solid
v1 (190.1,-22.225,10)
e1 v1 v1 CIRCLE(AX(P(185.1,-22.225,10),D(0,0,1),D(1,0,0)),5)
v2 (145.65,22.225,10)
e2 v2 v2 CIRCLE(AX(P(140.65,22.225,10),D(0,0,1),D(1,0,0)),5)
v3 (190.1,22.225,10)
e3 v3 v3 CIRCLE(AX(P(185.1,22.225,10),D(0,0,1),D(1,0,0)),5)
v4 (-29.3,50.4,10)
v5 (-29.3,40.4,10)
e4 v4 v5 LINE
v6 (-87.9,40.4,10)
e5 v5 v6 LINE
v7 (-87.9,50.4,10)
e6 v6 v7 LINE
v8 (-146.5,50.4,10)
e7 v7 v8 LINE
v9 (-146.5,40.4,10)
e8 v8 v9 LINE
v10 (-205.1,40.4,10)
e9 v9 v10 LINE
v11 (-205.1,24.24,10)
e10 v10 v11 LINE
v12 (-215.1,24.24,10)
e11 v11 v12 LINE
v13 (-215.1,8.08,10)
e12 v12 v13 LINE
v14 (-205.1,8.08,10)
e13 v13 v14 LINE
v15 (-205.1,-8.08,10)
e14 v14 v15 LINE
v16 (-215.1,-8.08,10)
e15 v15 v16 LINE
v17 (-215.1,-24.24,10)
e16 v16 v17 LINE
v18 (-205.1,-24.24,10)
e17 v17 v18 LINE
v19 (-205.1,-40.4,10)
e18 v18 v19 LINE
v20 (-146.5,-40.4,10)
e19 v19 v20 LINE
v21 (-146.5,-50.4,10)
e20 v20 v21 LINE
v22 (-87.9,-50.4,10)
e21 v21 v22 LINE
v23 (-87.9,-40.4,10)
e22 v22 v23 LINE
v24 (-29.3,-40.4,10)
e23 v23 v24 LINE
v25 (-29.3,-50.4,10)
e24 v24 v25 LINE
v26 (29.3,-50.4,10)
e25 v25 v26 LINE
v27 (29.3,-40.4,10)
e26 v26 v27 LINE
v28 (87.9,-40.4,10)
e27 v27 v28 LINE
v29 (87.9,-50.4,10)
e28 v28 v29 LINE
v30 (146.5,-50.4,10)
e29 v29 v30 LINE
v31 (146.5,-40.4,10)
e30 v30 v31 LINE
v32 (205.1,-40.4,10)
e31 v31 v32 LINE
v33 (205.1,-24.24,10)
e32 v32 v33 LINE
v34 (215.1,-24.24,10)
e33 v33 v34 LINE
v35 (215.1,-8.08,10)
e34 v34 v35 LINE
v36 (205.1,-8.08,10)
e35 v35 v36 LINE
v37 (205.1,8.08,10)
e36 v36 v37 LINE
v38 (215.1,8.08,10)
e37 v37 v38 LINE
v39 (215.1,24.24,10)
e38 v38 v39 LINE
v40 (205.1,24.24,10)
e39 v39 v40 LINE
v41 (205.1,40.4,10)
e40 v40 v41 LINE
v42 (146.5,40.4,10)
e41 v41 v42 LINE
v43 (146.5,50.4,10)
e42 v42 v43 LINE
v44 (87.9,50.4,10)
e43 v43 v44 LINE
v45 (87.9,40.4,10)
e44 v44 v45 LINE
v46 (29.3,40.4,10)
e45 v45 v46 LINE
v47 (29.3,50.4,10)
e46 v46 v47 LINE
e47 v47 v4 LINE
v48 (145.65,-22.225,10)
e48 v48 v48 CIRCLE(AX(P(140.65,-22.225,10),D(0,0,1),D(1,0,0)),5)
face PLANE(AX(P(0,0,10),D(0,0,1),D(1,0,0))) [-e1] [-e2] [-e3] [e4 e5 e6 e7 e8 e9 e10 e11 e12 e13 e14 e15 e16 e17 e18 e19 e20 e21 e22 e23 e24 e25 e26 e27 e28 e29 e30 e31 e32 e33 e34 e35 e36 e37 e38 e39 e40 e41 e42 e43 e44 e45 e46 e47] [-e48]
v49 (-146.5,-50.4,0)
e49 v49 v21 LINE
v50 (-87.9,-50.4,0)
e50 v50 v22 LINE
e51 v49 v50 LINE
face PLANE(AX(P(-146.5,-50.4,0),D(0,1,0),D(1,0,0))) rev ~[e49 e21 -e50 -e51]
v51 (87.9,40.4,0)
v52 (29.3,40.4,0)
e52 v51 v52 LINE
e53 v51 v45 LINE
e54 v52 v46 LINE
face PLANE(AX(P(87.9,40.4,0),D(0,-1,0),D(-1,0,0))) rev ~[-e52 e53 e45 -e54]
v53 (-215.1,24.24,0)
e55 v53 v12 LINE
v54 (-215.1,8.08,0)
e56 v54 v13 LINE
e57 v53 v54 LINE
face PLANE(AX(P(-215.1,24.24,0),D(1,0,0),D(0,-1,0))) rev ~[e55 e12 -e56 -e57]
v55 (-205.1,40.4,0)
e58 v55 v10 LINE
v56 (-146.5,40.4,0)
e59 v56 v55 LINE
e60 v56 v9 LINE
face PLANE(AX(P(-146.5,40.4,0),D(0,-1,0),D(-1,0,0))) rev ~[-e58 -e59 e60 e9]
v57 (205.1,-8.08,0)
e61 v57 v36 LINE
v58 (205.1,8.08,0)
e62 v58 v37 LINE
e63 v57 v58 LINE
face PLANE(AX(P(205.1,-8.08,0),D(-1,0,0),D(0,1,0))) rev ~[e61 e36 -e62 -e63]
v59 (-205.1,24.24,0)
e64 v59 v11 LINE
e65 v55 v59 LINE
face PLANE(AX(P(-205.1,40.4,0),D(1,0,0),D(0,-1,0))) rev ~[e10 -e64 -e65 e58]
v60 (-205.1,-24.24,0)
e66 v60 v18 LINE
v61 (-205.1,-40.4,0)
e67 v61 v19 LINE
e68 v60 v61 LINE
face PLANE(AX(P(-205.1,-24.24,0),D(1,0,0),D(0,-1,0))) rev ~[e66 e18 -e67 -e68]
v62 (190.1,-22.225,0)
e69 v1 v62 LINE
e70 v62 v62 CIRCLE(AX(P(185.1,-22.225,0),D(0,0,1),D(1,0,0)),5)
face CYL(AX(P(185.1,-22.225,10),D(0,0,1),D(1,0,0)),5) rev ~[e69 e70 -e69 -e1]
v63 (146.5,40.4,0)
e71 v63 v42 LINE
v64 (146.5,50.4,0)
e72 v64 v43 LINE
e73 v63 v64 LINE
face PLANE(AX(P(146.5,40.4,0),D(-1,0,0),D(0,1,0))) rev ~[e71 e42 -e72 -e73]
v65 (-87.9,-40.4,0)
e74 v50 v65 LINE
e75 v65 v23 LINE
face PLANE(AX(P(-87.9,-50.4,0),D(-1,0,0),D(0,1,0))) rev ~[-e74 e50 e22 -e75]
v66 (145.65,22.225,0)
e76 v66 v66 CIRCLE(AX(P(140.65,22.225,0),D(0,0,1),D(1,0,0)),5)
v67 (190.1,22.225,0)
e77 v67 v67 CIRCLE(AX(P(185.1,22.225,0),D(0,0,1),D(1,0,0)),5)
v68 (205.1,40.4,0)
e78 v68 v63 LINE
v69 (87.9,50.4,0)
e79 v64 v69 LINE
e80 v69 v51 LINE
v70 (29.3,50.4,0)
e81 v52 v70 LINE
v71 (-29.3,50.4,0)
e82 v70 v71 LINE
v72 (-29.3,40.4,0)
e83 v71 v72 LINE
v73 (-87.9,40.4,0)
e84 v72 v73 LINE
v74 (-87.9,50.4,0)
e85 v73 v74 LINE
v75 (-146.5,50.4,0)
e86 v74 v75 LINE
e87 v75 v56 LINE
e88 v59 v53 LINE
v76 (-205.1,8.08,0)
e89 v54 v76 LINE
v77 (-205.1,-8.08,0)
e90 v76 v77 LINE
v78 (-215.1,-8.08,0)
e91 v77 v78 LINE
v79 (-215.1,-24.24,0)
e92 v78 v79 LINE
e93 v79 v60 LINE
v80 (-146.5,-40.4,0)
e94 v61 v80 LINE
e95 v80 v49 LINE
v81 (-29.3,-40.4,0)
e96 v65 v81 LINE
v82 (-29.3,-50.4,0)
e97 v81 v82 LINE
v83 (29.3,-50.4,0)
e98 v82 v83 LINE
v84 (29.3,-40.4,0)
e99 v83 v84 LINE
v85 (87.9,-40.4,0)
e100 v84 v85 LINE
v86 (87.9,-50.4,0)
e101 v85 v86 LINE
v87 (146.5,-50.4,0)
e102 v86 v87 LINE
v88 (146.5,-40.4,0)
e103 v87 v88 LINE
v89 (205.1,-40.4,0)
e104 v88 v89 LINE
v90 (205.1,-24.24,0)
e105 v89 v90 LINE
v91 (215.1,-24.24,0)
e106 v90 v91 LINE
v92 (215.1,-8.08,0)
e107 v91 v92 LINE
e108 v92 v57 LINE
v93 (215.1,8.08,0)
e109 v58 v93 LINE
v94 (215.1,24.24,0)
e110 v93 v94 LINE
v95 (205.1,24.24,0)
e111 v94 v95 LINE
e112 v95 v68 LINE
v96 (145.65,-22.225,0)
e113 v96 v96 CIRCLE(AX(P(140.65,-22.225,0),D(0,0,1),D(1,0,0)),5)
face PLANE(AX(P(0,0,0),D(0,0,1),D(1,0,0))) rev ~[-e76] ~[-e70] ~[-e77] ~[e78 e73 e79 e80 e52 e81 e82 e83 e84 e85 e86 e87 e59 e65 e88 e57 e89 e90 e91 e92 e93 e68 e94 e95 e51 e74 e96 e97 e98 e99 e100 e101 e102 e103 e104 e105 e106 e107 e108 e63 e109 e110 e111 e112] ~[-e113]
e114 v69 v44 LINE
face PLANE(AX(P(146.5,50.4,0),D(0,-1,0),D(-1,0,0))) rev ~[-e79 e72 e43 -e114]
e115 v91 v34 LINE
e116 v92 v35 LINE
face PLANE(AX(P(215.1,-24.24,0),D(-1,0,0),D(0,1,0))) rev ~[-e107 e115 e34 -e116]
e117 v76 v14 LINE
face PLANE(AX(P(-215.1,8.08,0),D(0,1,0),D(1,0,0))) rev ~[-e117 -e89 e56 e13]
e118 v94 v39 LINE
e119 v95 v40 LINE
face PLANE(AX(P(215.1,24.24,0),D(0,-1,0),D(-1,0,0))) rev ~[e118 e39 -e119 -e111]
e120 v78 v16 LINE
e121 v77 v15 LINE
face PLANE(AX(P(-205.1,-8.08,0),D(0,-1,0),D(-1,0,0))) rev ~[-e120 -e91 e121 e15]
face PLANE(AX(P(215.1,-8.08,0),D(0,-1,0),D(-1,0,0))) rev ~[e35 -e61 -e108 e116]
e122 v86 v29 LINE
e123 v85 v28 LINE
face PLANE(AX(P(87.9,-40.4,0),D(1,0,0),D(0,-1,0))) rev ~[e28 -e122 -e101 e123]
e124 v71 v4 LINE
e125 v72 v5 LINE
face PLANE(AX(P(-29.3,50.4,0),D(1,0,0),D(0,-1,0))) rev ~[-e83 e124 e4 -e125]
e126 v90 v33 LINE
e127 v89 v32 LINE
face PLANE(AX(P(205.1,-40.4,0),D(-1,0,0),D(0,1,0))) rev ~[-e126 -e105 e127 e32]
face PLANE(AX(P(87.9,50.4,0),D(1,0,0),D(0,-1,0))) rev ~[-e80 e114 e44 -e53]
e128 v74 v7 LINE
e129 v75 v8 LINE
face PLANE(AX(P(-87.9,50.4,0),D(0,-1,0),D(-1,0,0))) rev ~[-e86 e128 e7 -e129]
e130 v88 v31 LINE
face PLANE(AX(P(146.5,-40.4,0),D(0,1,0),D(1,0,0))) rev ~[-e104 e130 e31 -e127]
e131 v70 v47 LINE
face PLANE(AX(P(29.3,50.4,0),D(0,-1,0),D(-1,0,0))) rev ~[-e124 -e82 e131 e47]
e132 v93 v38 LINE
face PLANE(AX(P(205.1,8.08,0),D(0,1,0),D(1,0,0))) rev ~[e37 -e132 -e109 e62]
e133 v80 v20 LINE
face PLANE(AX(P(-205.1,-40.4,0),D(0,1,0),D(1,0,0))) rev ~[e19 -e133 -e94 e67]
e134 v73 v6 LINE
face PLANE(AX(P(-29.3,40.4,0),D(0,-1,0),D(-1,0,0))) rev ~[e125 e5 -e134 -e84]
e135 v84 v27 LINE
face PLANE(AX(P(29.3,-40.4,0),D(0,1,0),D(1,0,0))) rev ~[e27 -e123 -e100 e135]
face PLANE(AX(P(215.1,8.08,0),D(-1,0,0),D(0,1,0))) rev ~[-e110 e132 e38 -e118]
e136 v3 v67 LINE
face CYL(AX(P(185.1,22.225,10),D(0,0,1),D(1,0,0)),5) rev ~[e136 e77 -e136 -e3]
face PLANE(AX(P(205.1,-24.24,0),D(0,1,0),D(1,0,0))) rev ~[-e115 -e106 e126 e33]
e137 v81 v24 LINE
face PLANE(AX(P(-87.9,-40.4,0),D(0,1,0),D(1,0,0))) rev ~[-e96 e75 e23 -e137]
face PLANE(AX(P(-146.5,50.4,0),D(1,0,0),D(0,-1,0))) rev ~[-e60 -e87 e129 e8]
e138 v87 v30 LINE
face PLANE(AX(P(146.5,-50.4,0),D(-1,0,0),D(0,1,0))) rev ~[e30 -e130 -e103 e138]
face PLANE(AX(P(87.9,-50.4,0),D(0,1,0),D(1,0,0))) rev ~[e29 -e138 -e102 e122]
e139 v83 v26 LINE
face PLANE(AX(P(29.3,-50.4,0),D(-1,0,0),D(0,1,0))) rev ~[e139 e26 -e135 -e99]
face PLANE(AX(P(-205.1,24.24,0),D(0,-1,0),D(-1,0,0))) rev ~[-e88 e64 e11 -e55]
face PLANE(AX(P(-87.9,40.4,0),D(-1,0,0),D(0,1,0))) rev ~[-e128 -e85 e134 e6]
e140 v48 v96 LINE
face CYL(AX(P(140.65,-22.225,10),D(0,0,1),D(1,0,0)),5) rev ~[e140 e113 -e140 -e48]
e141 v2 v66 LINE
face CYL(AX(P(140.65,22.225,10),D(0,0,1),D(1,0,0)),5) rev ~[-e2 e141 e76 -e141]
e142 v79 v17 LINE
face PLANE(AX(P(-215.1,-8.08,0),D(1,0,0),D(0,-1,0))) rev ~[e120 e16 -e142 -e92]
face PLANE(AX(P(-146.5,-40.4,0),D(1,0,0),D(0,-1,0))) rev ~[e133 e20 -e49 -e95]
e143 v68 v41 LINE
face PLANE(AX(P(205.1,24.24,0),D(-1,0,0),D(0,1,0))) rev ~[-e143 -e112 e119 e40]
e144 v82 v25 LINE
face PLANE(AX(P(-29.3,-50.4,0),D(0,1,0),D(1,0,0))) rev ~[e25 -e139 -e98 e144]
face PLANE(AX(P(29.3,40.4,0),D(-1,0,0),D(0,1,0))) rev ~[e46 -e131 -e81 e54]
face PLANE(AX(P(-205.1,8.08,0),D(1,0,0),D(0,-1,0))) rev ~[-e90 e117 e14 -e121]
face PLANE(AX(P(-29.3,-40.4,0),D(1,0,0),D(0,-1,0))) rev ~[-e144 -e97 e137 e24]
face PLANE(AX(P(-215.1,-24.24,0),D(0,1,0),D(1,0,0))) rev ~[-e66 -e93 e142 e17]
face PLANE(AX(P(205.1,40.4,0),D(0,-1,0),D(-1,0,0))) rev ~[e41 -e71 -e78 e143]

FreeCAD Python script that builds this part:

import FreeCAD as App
import Part
import Sketcher
Q = App.Units.Quantity


def add_polygon(sketch, points):
    """Adds a closed chain of lines whose ends are joined by coincident constraints."""
    first, n = sketch.GeometryCount, len(points)
    for a, b in zip(points, points[1:] + points[:1]):
        sketch.addGeometry(Part.LineSegment(App.Vector(*a, 0), App.Vector(*b, 0)), False)
    for i in range(n):
        sketch.addConstraint(Sketcher.Constraint("Coincident", first + i, 2, first + (i + 1) % n, 1))

doc = App.newDocument("Part")
params = doc.addObject("Spreadsheet::Sheet", "Params")
for row, (alias, value) in enumerate([
    ("sketch1_width", "10 mm"),
    ("sketch1_width2", "58.6 mm"),
    ("sketch1_height", "16.16 mm"),
    ("pad1_length", "10 mm"),
    ("sketch2_diameter", "10 mm"),
], start=1):
    params.set(f"A{row}", alias)
    params.set(f"B{row}", "=" + value)
    params.setAlias(f"B{row}", alias)

body = doc.addObject("PartDesign::Body", "Body")

# Sketch on XY plane
sketch1 = doc.addObject("Sketcher::SketchObject", "Sketch")
body.addObject(sketch1)
sketch1.AttachmentSupport = (doc.XY_Plane, [""])
sketch1.MapMode = "FlatFace"
add_polygon(sketch1, [(-205.1, 40.4), (-205.1, 24.24), (-215.1, 24.24), (-215.1, 8.08), (-205.1, 8.08), (-205.1, -8.08), (-215.1, -8.08), (-215.1, -24.24), (-205.1, -24.24), (-205.1, -40.4), (-146.5, -40.4), (-146.5, -50.4), (-87.9, -50.4), (-87.9, -40.4), (-29.3, -40.4), (-29.3, -50.4), (29.3, -50.4), (29.3, -40.4), (87.9, -40.4), (87.9, -50.4), (146.5, -50.4), (146.5, -40.4), (205.1, -40.4), (205.1, -24.24), (215.1, -24.24), (215.1, -8.08), (205.1, -8.08), (205.1, 8.08), (215.1, 8.08), (215.1, 24.24), (205.1, 24.24), (205.1, 40.4), (146.5, 40.4), (146.5, 50.4), (87.9, 50.4), (87.9, 40.4), (29.3, 40.4), (29.3, 50.4), (-29.3, 50.4), (-29.3, 40.4), (-87.9, 40.4), (-87.9, 50.4), (-146.5, 50.4), (-146.5, 40.4)])  # lines 0-43
sketch1.addConstraint([
    Sketcher.Constraint("Vertical", 0),
    Sketcher.Constraint("Horizontal", 1),
    Sketcher.Constraint("Vertical", 2),
    Sketcher.Constraint("Horizontal", 3),
    Sketcher.Constraint("Vertical", 4),
    Sketcher.Constraint("Horizontal", 5),
    Sketcher.Constraint("Vertical", 6),
    Sketcher.Constraint("Horizontal", 7),
    Sketcher.Constraint("Vertical", 8),
    Sketcher.Constraint("Horizontal", 9),
    Sketcher.Constraint("Vertical", 10),
    Sketcher.Constraint("Horizontal", 11),
    Sketcher.Constraint("Vertical", 12),
    Sketcher.Constraint("Horizontal", 13),
    Sketcher.Constraint("Vertical", 14),
    Sketcher.Constraint("Horizontal", 15),
    Sketcher.Constraint("Vertical", 16),
    Sketcher.Constraint("Horizontal", 17),
    Sketcher.Constraint("Vertical", 18),
    Sketcher.Constraint("Horizontal", 19),
    Sketcher.Constraint("Vertical", 20),
    Sketcher.Constraint("Horizontal", 21),
    Sketcher.Constraint("Vertical", 22),
    Sketcher.Constraint("Horizontal", 23),
    Sketcher.Constraint("Vertical", 24),
    Sketcher.Constraint("Horizontal", 25),
    Sketcher.Constraint("Vertical", 26),
    Sketcher.Constraint("Horizontal", 27),
    Sketcher.Constraint("Vertical", 28),
    Sketcher.Constraint("Horizontal", 29),
    Sketcher.Constraint("Vertical", 30),
    Sketcher.Constraint("Horizontal", 31),
    Sketcher.Constraint("Vertical", 32),
    Sketcher.Constraint("Horizontal", 33),
    Sketcher.Constraint("Vertical", 34),
    Sketcher.Constraint("Horizontal", 35),
    Sketcher.Constraint("Vertical", 36),
    Sketcher.Constraint("Horizontal", 37),
    Sketcher.Constraint("Vertical", 38),
    Sketcher.Constraint("Horizontal", 39),
    Sketcher.Constraint("Vertical", 40),
    Sketcher.Constraint("Horizontal", 41),
    Sketcher.Constraint("Vertical", 42),
    Sketcher.Constraint("Horizontal", 43),
    Sketcher.Constraint("Symmetric", 0, 2, 22, 2, -1, 1),
    Sketcher.Constraint("Symmetric", 2, 2, 24, 2, -1, 1),
    Sketcher.Constraint("Symmetric", 4, 2, 26, 2, -1, 1),
    Sketcher.Constraint("Symmetric", 6, 2, 28, 2, -1, 1),
    Sketcher.Constraint("Symmetric", 8, 2, 30, 2, -1, 1),
    Sketcher.Constraint("Symmetric", 10, 2, 32, 2, -1, 1),
    Sketcher.Constraint("Symmetric", 12, 2, 34, 2, -1, 1),
    Sketcher.Constraint("Symmetric", 14, 2, 36, 2, -1, 1),
    Sketcher.Constraint("Symmetric", 16, 2, 38, 2, -1, 1),
    Sketcher.Constraint("Symmetric", 18, 2, 40, 2, -1, 1),
    Sketcher.Constraint("Symmetric", 20, 2, 42, 2, -1, 1),
    Sketcher.Constraint("Symmetric", 13, 2, 16, 2, -2),
    Sketcher.Constraint("Symmetric", 11, 2, 18, 2, -2),
    Sketcher.Constraint("Symmetric", 9, 2, 20, 2, -2),
    Sketcher.Constraint("Symmetric", 7, 2, 22, 2, -2),
    Sketcher.Constraint("Symmetric", 5, 2, 24, 2, -2),
    Sketcher.Constraint("Horizontal", 9, 2, 12, 2),
    Sketcher.Constraint("Horizontal", 11, 2, 14, 2),
    Sketcher.Constraint("Vertical", 0, 2, 3, 2),
    Sketcher.Constraint("Equal", 9, 11),
    Sketcher.Constraint("Equal", 11, 13),
    Sketcher.Constraint("Equal", 13, 15),
    Sketcher.Constraint("Equal", 0, 2),
    Sketcher.Constraint("Equal", 2, 4),
    Sketcher.Constraint("Equal", 29, 10),
    Sketcher.Constraint("DistanceX", 1, 2, 1, 1, Q("10 mm")),
    Sketcher.Constraint("DistanceX", 9, 1, 9, 2, Q("58.6 mm")),
    Sketcher.Constraint("DistanceY", 0, 2, 0, 1, Q("16.16 mm")),
])
sketch1.setExpression("Constraints[113]", "Params.sketch1_width")
sketch1.setExpression("Constraints[114]", "Params.sketch1_width2")
sketch1.setExpression("Constraints[115]", "Params.sketch1_height")
pad1 = doc.addObject("PartDesign::Pad", "Pad")
body.addObject(pad1)
pad1.Profile = sketch1
pad1.setExpression("Length", "Params.pad1_length")

# Sketch on XY plane
sketch2 = doc.addObject("Sketcher::SketchObject", "Sketch001")
body.addObject(sketch2)
sketch2.AttachmentSupport = (doc.XY_Plane, [""])
sketch2.MapMode = "FlatFace"
sketch2.AttachmentOffset = App.Placement(App.Vector(0, 0, 10), App.Rotation())
sketch2.addGeometry([
    Part.Circle(App.Vector(185.1, 22.225, 0), App.Vector(0, 0, 1), 5),
    Part.Circle(App.Vector(140.65, 22.225, 0), App.Vector(0, 0, 1), 5),
    Part.Circle(App.Vector(140.65, -22.225, 0), App.Vector(0, 0, 1), 5),
    Part.Circle(App.Vector(185.1, -22.225, 0), App.Vector(0, 0, 1), 5),
], False)
sketch2.addConstraint([
    Sketcher.Constraint("Equal", 0, 1),
    Sketcher.Constraint("Equal", 1, 2),
    Sketcher.Constraint("Equal", 2, 3),
    Sketcher.Constraint("Symmetric", 1, 3, 2, 3, -1),
    Sketcher.Constraint("Symmetric", 0, 3, 3, 3, -1),
    Sketcher.Constraint("Horizontal", 0, 3, 1, 3),
    Sketcher.Constraint("Diameter", 0, Q("10 mm")),
    Sketcher.Constraint("DistanceX", -1, 1, 0, 3, Q("185.1 mm")),
    Sketcher.Constraint("DistanceX", -1, 1, 1, 3, Q("140.65 mm")),
    Sketcher.Constraint("DistanceY", 2, 3, 1, 3, Q("44.45 mm")),
])
sketch2.setExpression("Constraints[6]", "Params.sketch2_diameter")
pocket1 = doc.addObject("PartDesign::Pocket", "Pocket")
body.addObject(pocket1)
pocket1.Profile = sketch2
pocket1.Type = "ThroughAll"

doc.recompute()
